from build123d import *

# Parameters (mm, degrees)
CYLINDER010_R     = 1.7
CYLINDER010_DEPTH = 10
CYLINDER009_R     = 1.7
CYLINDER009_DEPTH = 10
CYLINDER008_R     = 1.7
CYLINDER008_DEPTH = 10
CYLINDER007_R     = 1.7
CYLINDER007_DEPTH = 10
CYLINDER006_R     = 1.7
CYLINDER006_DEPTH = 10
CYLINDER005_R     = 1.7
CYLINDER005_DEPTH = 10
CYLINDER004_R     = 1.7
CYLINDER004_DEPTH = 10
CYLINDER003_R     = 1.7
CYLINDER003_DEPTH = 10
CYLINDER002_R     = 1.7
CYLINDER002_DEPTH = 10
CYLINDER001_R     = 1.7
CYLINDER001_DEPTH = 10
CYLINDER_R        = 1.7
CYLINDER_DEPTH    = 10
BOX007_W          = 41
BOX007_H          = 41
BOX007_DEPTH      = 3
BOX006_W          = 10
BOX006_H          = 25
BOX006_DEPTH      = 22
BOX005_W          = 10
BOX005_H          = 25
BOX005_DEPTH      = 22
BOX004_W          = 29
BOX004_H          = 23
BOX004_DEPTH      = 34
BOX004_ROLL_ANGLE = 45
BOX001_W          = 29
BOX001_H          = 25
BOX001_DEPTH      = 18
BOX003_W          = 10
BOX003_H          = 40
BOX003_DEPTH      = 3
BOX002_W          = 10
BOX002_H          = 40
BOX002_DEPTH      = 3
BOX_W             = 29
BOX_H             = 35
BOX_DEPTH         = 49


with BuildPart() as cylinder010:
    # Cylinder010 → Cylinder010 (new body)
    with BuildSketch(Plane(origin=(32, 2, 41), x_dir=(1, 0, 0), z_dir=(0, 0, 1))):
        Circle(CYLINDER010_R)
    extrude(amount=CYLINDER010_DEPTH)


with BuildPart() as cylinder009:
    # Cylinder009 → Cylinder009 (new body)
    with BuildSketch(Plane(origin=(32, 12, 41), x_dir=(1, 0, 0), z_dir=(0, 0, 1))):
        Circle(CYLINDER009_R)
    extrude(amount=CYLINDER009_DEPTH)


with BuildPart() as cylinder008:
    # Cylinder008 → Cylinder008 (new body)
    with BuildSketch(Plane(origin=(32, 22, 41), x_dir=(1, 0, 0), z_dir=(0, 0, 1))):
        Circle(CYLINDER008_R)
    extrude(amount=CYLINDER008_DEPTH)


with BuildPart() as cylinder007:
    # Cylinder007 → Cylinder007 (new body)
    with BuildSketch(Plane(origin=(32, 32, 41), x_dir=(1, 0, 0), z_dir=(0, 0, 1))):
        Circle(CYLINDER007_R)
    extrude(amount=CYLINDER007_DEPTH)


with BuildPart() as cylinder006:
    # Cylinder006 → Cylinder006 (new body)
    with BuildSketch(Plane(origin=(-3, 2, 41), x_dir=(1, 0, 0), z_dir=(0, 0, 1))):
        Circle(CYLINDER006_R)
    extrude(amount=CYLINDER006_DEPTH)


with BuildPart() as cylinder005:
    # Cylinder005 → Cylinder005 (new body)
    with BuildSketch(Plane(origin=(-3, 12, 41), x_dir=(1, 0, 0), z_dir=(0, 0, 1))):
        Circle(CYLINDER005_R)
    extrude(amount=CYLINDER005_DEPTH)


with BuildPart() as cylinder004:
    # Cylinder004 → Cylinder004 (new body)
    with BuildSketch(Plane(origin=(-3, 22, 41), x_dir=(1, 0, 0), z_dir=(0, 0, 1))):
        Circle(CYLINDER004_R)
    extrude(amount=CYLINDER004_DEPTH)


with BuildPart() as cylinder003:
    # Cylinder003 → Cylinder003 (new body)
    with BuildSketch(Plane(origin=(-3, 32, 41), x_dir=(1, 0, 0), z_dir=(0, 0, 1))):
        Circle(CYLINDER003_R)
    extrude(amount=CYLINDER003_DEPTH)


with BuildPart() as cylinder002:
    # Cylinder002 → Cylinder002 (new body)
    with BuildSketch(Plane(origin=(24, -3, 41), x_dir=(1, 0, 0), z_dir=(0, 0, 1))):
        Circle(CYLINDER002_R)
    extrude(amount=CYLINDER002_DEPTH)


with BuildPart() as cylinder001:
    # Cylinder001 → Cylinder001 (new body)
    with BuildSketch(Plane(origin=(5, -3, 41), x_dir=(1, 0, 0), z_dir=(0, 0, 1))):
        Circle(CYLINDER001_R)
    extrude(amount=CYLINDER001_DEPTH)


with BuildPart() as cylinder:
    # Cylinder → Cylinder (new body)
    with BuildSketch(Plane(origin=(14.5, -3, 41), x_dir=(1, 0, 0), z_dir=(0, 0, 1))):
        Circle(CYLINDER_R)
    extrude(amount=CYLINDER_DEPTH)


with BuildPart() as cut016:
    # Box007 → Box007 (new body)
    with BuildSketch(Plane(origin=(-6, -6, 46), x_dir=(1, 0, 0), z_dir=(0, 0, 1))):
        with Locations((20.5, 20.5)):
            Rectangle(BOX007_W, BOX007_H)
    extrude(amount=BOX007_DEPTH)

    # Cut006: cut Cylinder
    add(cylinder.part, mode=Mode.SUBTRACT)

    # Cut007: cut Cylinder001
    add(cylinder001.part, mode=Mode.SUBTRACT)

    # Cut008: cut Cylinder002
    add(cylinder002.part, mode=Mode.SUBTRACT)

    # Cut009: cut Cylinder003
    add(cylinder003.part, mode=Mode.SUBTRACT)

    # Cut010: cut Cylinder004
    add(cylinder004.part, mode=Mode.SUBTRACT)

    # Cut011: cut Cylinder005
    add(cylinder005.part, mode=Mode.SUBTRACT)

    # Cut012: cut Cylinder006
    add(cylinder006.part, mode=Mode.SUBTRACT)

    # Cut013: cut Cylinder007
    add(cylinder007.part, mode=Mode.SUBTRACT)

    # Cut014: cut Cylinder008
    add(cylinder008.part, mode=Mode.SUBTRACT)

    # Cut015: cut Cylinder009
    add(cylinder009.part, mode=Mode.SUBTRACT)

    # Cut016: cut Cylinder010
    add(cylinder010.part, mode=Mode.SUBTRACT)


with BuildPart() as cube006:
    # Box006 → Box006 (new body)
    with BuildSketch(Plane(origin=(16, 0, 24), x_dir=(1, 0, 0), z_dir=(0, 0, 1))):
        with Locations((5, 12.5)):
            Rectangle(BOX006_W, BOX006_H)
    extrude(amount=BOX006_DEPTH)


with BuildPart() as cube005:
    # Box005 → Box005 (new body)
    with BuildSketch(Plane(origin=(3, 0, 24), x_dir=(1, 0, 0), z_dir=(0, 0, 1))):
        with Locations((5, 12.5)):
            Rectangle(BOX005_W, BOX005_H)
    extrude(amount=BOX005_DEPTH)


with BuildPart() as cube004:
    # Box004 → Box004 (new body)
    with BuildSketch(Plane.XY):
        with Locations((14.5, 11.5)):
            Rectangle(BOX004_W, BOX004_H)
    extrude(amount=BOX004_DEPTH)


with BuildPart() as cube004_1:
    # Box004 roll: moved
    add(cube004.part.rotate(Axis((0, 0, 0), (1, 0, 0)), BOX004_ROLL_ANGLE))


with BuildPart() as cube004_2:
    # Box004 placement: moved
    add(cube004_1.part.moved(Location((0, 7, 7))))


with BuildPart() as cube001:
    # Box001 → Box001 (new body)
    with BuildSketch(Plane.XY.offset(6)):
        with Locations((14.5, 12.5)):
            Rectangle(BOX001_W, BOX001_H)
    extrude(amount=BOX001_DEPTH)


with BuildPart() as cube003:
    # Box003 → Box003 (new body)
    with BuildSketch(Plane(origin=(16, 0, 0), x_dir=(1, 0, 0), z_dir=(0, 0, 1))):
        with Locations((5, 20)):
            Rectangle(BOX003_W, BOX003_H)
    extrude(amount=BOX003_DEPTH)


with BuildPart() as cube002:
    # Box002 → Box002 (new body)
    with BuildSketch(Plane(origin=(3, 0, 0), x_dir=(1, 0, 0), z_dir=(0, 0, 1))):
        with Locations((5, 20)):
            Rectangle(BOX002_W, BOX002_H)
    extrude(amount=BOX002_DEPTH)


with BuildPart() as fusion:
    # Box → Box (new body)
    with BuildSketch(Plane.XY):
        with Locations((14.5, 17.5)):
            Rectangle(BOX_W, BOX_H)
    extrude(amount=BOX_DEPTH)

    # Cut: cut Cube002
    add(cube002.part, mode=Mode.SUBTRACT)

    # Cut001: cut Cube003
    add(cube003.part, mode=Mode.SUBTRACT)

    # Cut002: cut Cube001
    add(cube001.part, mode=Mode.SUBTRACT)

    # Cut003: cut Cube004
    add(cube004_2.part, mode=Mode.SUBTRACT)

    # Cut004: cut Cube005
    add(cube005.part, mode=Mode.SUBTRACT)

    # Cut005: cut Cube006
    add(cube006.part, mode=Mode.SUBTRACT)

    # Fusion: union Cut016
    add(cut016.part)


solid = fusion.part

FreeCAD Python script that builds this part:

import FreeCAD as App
import Part
import Sketcher
from FreeCAD import Vector


def add_polygon(sketch, points):
    """Adds a closed chain of lines whose ends are joined by coincident constraints."""
    first, n = sketch.GeometryCount, len(points)
    for a, b in zip(points, points[1:] + points[:1]):
        sketch.addGeometry(Part.LineSegment(App.Vector(*a, 0), App.Vector(*b, 0)), False)
    for i in range(n):
        sketch.addConstraint(Sketcher.Constraint("Coincident", first + i, 2, first + (i + 1) % n, 1))

doc = App.newDocument("Part")
body = doc.addObject("PartDesign::Body", "Body")

# Sketch on XY plane
sketch1 = body.newObject("Sketcher::SketchObject", "Sketch")
sketch1.AttachmentSupport = (doc.getObject("XY_Plane"), [""])
sketch1.MapMode = "FlatFace"
sketch1.AttachmentOffset = App.Placement(Vector(0, 0, 41), App.Rotation())
sketch1.addGeometry(Part.Circle(Vector(32, 2, 0), Vector(0, 0, 1), 1.7), False)
sketch1.addConstraint([
    Sketcher.Constraint("Diameter", 0, 3.4),
    Sketcher.Constraint("DistanceX", -1, 1, 0, 3, 32.0),
    Sketcher.Constraint("DistanceY", -1, 1, 0, 3, 2.0),
])
pad1 = body.newObject("PartDesign::Pad", "Pad")
pad1.Profile = sketch1
pad1.Length = 10
body2 = doc.addObject("PartDesign::Body", "Body001")

# Sketch on XY plane
sketch2 = body2.newObject("Sketcher::SketchObject", "Sketch001")
sketch2.AttachmentSupport = (doc.getObject("XY_Plane001"), [""])
sketch2.MapMode = "FlatFace"
sketch2.AttachmentOffset = App.Placement(Vector(0, 0, 41), App.Rotation())
sketch2.addGeometry(Part.Circle(Vector(32, 12, 0), Vector(0, 0, 1), 1.7), False)
sketch2.addConstraint([
    Sketcher.Constraint("Diameter", 0, 3.4),
    Sketcher.Constraint("DistanceX", -1, 1, 0, 3, 32.0),
    Sketcher.Constraint("DistanceY", -1, 1, 0, 3, 12.0),
])
pad2 = body2.newObject("PartDesign::Pad", "Pad001")
pad2.Profile = sketch2
pad2.Length = 10
body3 = doc.addObject("PartDesign::Body", "Body002")

# Sketch on XY plane
sketch3 = body3.newObject("Sketcher::SketchObject", "Sketch002")
sketch3.AttachmentSupport = (doc.getObject("XY_Plane002"), [""])
sketch3.MapMode = "FlatFace"
sketch3.AttachmentOffset = App.Placement(Vector(0, 0, 41), App.Rotation())
sketch3.addGeometry(Part.Circle(Vector(32, 22, 0), Vector(0, 0, 1), 1.7), False)
sketch3.addConstraint([
    Sketcher.Constraint("Diameter", 0, 3.4),
    Sketcher.Constraint("DistanceX", -1, 1, 0, 3, 32.0),
    Sketcher.Constraint("DistanceY", -1, 1, 0, 3, 22.0),
])
pad3 = body3.newObject("PartDesign::Pad", "Pad002")
pad3.Profile = sketch3
pad3.Length = 10
body4 = doc.addObject("PartDesign::Body", "Body003")

# Sketch on XY plane
sketch4 = body4.newObject("Sketcher::SketchObject", "Sketch003")
sketch4.AttachmentSupport = (doc.getObject("XY_Plane003"), [""])
sketch4.MapMode = "FlatFace"
sketch4.AttachmentOffset = App.Placement(Vector(0, 0, 41), App.Rotation())
sketch4.addGeometry(Part.Circle(Vector(32, 32, 0), Vector(0, 0, 1), 1.7), False)
sketch4.addConstraint([
    Sketcher.Constraint("Diameter", 0, 3.4),
    Sketcher.Constraint("DistanceX", -1, 1, 0, 3, 32.0),
    Sketcher.Constraint("DistanceY", -1, 1, 0, 3, 32.0),
])
pad4 = body4.newObject("PartDesign::Pad", "Pad003")
pad4.Profile = sketch4
pad4.Length = 10
body5 = doc.addObject("PartDesign::Body", "Body004")

# Sketch on XY plane
sketch5 = body5.newObject("Sketcher::SketchObject", "Sketch004")
sketch5.AttachmentSupport = (doc.getObject("XY_Plane004"), [""])
sketch5.MapMode = "FlatFace"
sketch5.AttachmentOffset = App.Placement(Vector(0, 0, 41), App.Rotation())
sketch5.addGeometry(Part.Circle(Vector(-3, 2, 0), Vector(0, 0, 1), 1.7), False)
sketch5.addConstraint([
    Sketcher.Constraint("Diameter", 0, 3.4),
    Sketcher.Constraint("DistanceX", 0, 3, -1, 1, 3.0),
    Sketcher.Constraint("DistanceY", -1, 1, 0, 3, 2.0),
])
pad5 = body5.newObject("PartDesign::Pad", "Pad004")
pad5.Profile = sketch5
pad5.Length = 10
body6 = doc.addObject("PartDesign::Body", "Body005")

# Sketch on XY plane
sketch6 = body6.newObject("Sketcher::SketchObject", "Sketch005")
sketch6.AttachmentSupport = (doc.getObject("XY_Plane005"), [""])
sketch6.MapMode = "FlatFace"
sketch6.AttachmentOffset = App.Placement(Vector(0, 0, 41), App.Rotation())
sketch6.addGeometry(Part.Circle(Vector(-3, 12, 0), Vector(0, 0, 1), 1.7), False)
sketch6.addConstraint([
    Sketcher.Constraint("Diameter", 0, 3.4),
    Sketcher.Constraint("DistanceX", 0, 3, -1, 1, 3.0),
    Sketcher.Constraint("DistanceY", -1, 1, 0, 3, 12.0),
])
pad6 = body6.newObject("PartDesign::Pad", "Pad005")
pad6.Profile = sketch6
pad6.Length = 10
body7 = doc.addObject("PartDesign::Body", "Body006")

# Sketch on XY plane
sketch7 = body7.newObject("Sketcher::SketchObject", "Sketch006")
sketch7.AttachmentSupport = (doc.getObject("XY_Plane006"), [""])
sketch7.MapMode = "FlatFace"
sketch7.AttachmentOffset = App.Placement(Vector(0, 0, 41), App.Rotation())
sketch7.addGeometry(Part.Circle(Vector(-3, 22, 0), Vector(0, 0, 1), 1.7), False)
sketch7.addConstraint([
    Sketcher.Constraint("Diameter", 0, 3.4),
    Sketcher.Constraint("DistanceX", 0, 3, -1, 1, 3.0),
    Sketcher.Constraint("DistanceY", -1, 1, 0, 3, 22.0),
])
pad7 = body7.newObject("PartDesign::Pad", "Pad006")
pad7.Profile = sketch7
pad7.Length = 10
body8 = doc.addObject("PartDesign::Body", "Body007")

# Sketch on XY plane
sketch8 = body8.newObject("Sketcher::SketchObject", "Sketch007")
sketch8.AttachmentSupport = (doc.getObject("XY_Plane007"), [""])
sketch8.MapMode = "FlatFace"
sketch8.AttachmentOffset = App.Placement(Vector(0, 0, 41), App.Rotation())
sketch8.addGeometry(Part.Circle(Vector(-3, 32, 0), Vector(0, 0, 1), 1.7), False)
sketch8.addConstraint([
    Sketcher.Constraint("Diameter", 0, 3.4),
    Sketcher.Constraint("DistanceX", 0, 3, -1, 1, 3.0),
    Sketcher.Constraint("DistanceY", -1, 1, 0, 3, 32.0),
])
pad8 = body8.newObject("PartDesign::Pad", "Pad007")
pad8.Profile = sketch8
pad8.Length = 10
body9 = doc.addObject("PartDesign::Body", "Body008")

# Sketch on XY plane
sketch9 = body9.newObject("Sketcher::SketchObject", "Sketch008")
sketch9.AttachmentSupport = (doc.getObject("XY_Plane008"), [""])
sketch9.MapMode = "FlatFace"
sketch9.AttachmentOffset = App.Placement(Vector(0, 0, 41), App.Rotation())
sketch9.addGeometry(Part.Circle(Vector(24, -3, 0), Vector(0, 0, 1), 1.7), False)
sketch9.addConstraint([
    Sketcher.Constraint("Diameter", 0, 3.4),
    Sketcher.Constraint("DistanceX", -1, 1, 0, 3, 24.0),
    Sketcher.Constraint("DistanceY", 0, 3, -1, 1, 3.0),
])
pad9 = body9.newObject("PartDesign::Pad", "Pad008")
pad9.Profile = sketch9
pad9.Length = 10
body10 = doc.addObject("PartDesign::Body", "Body009")

# Sketch on XY plane
sketch10 = body10.newObject("Sketcher::SketchObject", "Sketch009")
sketch10.AttachmentSupport = (doc.getObject("XY_Plane009"), [""])
sketch10.MapMode = "FlatFace"
sketch10.AttachmentOffset = App.Placement(Vector(0, 0, 41), App.Rotation())
sketch10.addGeometry(Part.Circle(Vector(5, -3, 0), Vector(0, 0, 1), 1.7), False)
sketch10.addConstraint([
    Sketcher.Constraint("Diameter", 0, 3.4),
    Sketcher.Constraint("DistanceX", -1, 1, 0, 3, 5.0),
    Sketcher.Constraint("DistanceY", 0, 3, -1, 1, 3.0),
])
pad10 = body10.newObject("PartDesign::Pad", "Pad009")
pad10.Profile = sketch10
pad10.Length = 10
body11 = doc.addObject("PartDesign::Body", "Body010")

# Sketch on XY plane
sketch11 = body11.newObject("Sketcher::SketchObject", "Sketch010")
sketch11.AttachmentSupport = (doc.getObject("XY_Plane010"), [""])
sketch11.MapMode = "FlatFace"
sketch11.AttachmentOffset = App.Placement(Vector(0, 0, 41), App.Rotation())
sketch11.addGeometry(Part.Circle(Vector(14.5, -3, 0), Vector(0, 0, 1), 1.7), False)
sketch11.addConstraint([
    Sketcher.Constraint("Diameter", 0, 3.4),
    Sketcher.Constraint("DistanceY", 0, 3, -1, 1, 3.0),
    Sketcher.Constraint("DistanceX", -1, 1, 0, 3, 14.5),
])
pad11 = body11.newObject("PartDesign::Pad", "Pad010")
pad11.Profile = sketch11
pad11.Length = 10
body12 = doc.addObject("PartDesign::Body", "Body011")

# Sketch on XY plane
sketch12 = body12.newObject("Sketcher::SketchObject", "Sketch011")
sketch12.AttachmentSupport = (doc.getObject("XY_Plane011"), [""])
sketch12.MapMode = "FlatFace"
sketch12.AttachmentOffset = App.Placement(Vector(0, 0, 46), App.Rotation())
add_polygon(sketch12, [(-6, 35), (-6, -6), (35, -6), (35, 35)])  # lines 0-3
sketch12.addConstraint([
    Sketcher.Constraint("Vertical", 0),
    Sketcher.Constraint("Horizontal", 1),
    Sketcher.Constraint("Vertical", 2),
    Sketcher.Constraint("Horizontal", 3),
    Sketcher.Constraint("Equal", 3, 0),
    Sketcher.Constraint("DistanceX", 1, 1, 1, 2, 41.0),
    Sketcher.Constraint("DistanceX", 0, 2, -1, 1, 6.0),
    Sketcher.Constraint("DistanceY", 0, 2, -1, 1, 6.0),
])
pad12 = body12.newObject("PartDesign::Pad", "Pad011")
pad12.Profile = sketch12
pad12.Length = 3
doc.recompute()

boolean = body12.newObject("PartDesign::Boolean", "Boolean")
boolean.Type = "Cut"
boolean.addObjects([body11])
doc.recompute()

boolean2 = body12.newObject("PartDesign::Boolean", "Boolean001")
boolean2.Type = "Cut"
boolean2.addObjects([body10])
doc.recompute()

boolean3 = body12.newObject("PartDesign::Boolean", "Boolean002")
boolean3.Type = "Cut"
boolean3.addObjects([body9])
doc.recompute()

boolean4 = body12.newObject("PartDesign::Boolean", "Boolean003")
boolean4.Type = "Cut"
boolean4.addObjects([body8])
doc.recompute()

boolean5 = body12.newObject("PartDesign::Boolean", "Boolean004")
boolean5.Type = "Cut"
boolean5.addObjects([body7])
doc.recompute()

boolean6 = body12.newObject("PartDesign::Boolean", "Boolean005")
boolean6.Type = "Cut"
boolean6.addObjects([body6])
doc.recompute()

boolean7 = body12.newObject("PartDesign::Boolean", "Boolean006")
boolean7.Type = "Cut"
boolean7.addObjects([body5])
doc.recompute()

boolean8 = body12.newObject("PartDesign::Boolean", "Boolean007")
boolean8.Type = "Cut"
boolean8.addObjects([body4])
doc.recompute()

boolean9 = body12.newObject("PartDesign::Boolean", "Boolean008")
boolean9.Type = "Cut"
boolean9.addObjects([body3])
doc.recompute()

boolean10 = body12.newObject("PartDesign::Boolean", "Boolean009")
boolean10.Type = "Cut"
boolean10.addObjects([body2])
doc.recompute()

boolean11 = body12.newObject("PartDesign::Boolean", "Boolean010")
boolean11.Type = "Cut"
boolean11.addObjects([body])
body13 = doc.addObject("PartDesign::Body", "Body012")

# Sketch on XY plane
sketch13 = body13.newObject("Sketcher::SketchObject", "Sketch012")
sketch13.AttachmentSupport = (doc.getObject("XY_Plane012"), [""])
sketch13.MapMode = "FlatFace"
sketch13.AttachmentOffset = App.Placement(Vector(0, 0, 24), App.Rotation())
add_polygon(sketch13, [(16, 25), (16, 0), (26, 0), (26, 25)])  # lines 0-3
sketch13.addConstraint([
    Sketcher.Constraint("Vertical", 0),
    Sketcher.Constraint("Horizontal", 1),
    Sketcher.Constraint("Vertical", 2),
    Sketcher.Constraint("Horizontal", 3),
    Sketcher.Constraint("PointOnObject", 0, 2, -1),
    Sketcher.Constraint("DistanceX", 1, 1, 1, 2, 10.0),
    Sketcher.Constraint("DistanceY", 0, 2, 0, 1, 25.0),
    Sketcher.Constraint("DistanceX", -1, 1, 0, 2, 16.0),
])
pad13 = body13.newObject("PartDesign::Pad", "Pad012")
pad13.Profile = sketch13
pad13.Length = 22
body14 = doc.addObject("PartDesign::Body", "Body013")

# Sketch on XY plane
sketch14 = body14.newObject("Sketcher::SketchObject", "Sketch013")
sketch14.AttachmentSupport = (doc.getObject("XY_Plane013"), [""])
sketch14.MapMode = "FlatFace"
sketch14.AttachmentOffset = App.Placement(Vector(0, 0, 24), App.Rotation())
add_polygon(sketch14, [(3, 25), (3, 0), (13, 0), (13, 25)])  # lines 0-3
sketch14.addConstraint([
    Sketcher.Constraint("Vertical", 0),
    Sketcher.Constraint("Horizontal", 1),
    Sketcher.Constraint("Vertical", 2),
    Sketcher.Constraint("Horizontal", 3),
    Sketcher.Constraint("PointOnObject", 0, 2, -1),
    Sketcher.Constraint("DistanceX", 1, 1, 1, 2, 10.0),
    Sketcher.Constraint("DistanceY", 0, 2, 0, 1, 25.0),
    Sketcher.Constraint("DistanceX", -1, 1, 0, 2, 3.0),
])
pad14 = body14.newObject("PartDesign::Pad", "Pad013")
pad14.Profile = sketch14
pad14.Length = 22
body15 = doc.addObject("PartDesign::Body", "Body014")

# Sketch on XY plane
sketch15 = body15.newObject("Sketcher::SketchObject", "Sketch014")
sketch15.AttachmentSupport = (doc.getObject("XY_Plane014"), [""])
sketch15.MapMode = "FlatFace"
add_polygon(sketch15, [(0, 23), (0, 0), (29, 0), (29, 23)])  # lines 0-3
sketch15.addConstraint([
    Sketcher.Constraint("Vertical", 0),
    Sketcher.Constraint("Horizontal", 1),
    Sketcher.Constraint("Vertical", 2),
    Sketcher.Constraint("Horizontal", 3),
    Sketcher.Constraint("Coincident", 0, 2, -1, 1),
    Sketcher.Constraint("DistanceX", 1, 1, 1, 2, 29.0),
    Sketcher.Constraint("DistanceY", 0, 2, 0, 1, 23.0),
])
pad15 = body15.newObject("PartDesign::Pad", "Pad014")
pad15.Profile = sketch15
pad15.Length = 34
body16 = doc.addObject("PartDesign::Body", "Body015")
doc.recompute()

body15.Placement = App.Placement(Vector(0, 0, 0), App.Rotation(Vector(1, 0, 0), 45))
boolean12 = body16.newObject("PartDesign::Boolean", "Boolean011")
boolean12.Type = "Fuse"
boolean12.addObjects([body15])
body17 = doc.addObject("PartDesign::Body", "Body016")
doc.recompute()

body16.Placement = App.Placement(Vector(0, 7, 7), App.Rotation(Vector(0, 0, 1), 0))
boolean13 = body17.newObject("PartDesign::Boolean", "Boolean012")
boolean13.Type = "Fuse"
boolean13.addObjects([body16])
body18 = doc.addObject("PartDesign::Body", "Body017")

# Sketch on XY plane
sketch16 = body18.newObject("Sketcher::SketchObject", "Sketch015")
sketch16.AttachmentSupport = (doc.getObject("XY_Plane017"), [""])
sketch16.MapMode = "FlatFace"
sketch16.AttachmentOffset = App.Placement(Vector(0, 0, 6), App.Rotation())
add_polygon(sketch16, [(0, 25), (0, 0), (29, 0), (29, 25)])  # lines 0-3
sketch16.addConstraint([
    Sketcher.Constraint("Vertical", 0),
    Sketcher.Constraint("Horizontal", 1),
    Sketcher.Constraint("Vertical", 2),
    Sketcher.Constraint("Horizontal", 3),
    Sketcher.Constraint("Coincident", 0, 2, -1, 1),
    Sketcher.Constraint("DistanceX", 1, 1, 1, 2, 29.0),
    Sketcher.Constraint("DistanceY", 0, 2, 0, 1, 25.0),
])
pad16 = body18.newObject("PartDesign::Pad", "Pad015")
pad16.Profile = sketch16
pad16.Length = 18
body19 = doc.addObject("PartDesign::Body", "Body018")

# Sketch on XY plane
sketch17 = body19.newObject("Sketcher::SketchObject", "Sketch016")
sketch17.AttachmentSupport = (doc.getObject("XY_Plane018"), [""])
sketch17.MapMode = "FlatFace"
add_polygon(sketch17, [(16, 40), (16, 0), (26, 0), (26, 40)])  # lines 0-3
sketch17.addConstraint([
    Sketcher.Constraint("Vertical", 0),
    Sketcher.Constraint("Horizontal", 1),
    Sketcher.Constraint("Vertical", 2),
    Sketcher.Constraint("Horizontal", 3),
    Sketcher.Constraint("PointOnObject", 0, 2, -1),
    Sketcher.Constraint("DistanceX", 1, 1, 1, 2, 10.0),
    Sketcher.Constraint("DistanceY", 0, 2, 0, 1, 40.0),
    Sketcher.Constraint("DistanceX", -1, 1, 0, 2, 16.0),
])
pad17 = body19.newObject("PartDesign::Pad", "Pad016")
pad17.Profile = sketch17
pad17.Length = 3
body20 = doc.addObject("PartDesign::Body", "Body019")

# Sketch on XY plane
sketch18 = body20.newObject("Sketcher::SketchObject", "Sketch017")
sketch18.AttachmentSupport = (doc.getObject("XY_Plane019"), [""])
sketch18.MapMode = "FlatFace"
add_polygon(sketch18, [(3, 40), (3, 0), (13, 0), (13, 40)])  # lines 0-3
sketch18.addConstraint([
    Sketcher.Constraint("Vertical", 0),
    Sketcher.Constraint("Horizontal", 1),
    Sketcher.Constraint("Vertical", 2),
    Sketcher.Constraint("Horizontal", 3),
    Sketcher.Constraint("PointOnObject", 0, 2, -1),
    Sketcher.Constraint("DistanceX", 1, 1, 1, 2, 10.0),
    Sketcher.Constraint("DistanceY", 0, 2, 0, 1, 40.0),
    Sketcher.Constraint("DistanceX", -1, 1, 0, 2, 3.0),
])
pad18 = body20.newObject("PartDesign::Pad", "Pad017")
pad18.Profile = sketch18
pad18.Length = 3
body21 = doc.addObject("PartDesign::Body", "Body020")

# Sketch on XY plane
sketch19 = body21.newObject("Sketcher::SketchObject", "Sketch018")
sketch19.AttachmentSupport = (doc.getObject("XY_Plane020"), [""])
sketch19.MapMode = "FlatFace"
add_polygon(sketch19, [(0, 35), (0, 0), (29, 0), (29, 35)])  # lines 0-3
sketch19.addConstraint([
    Sketcher.Constraint("Vertical", 0),
    Sketcher.Constraint("Horizontal", 1),
    Sketcher.Constraint("Vertical", 2),
    Sketcher.Constraint("Horizontal", 3),
    Sketcher.Constraint("Coincident", 0, 2, -1, 1),
    Sketcher.Constraint("DistanceX", 1, 1, 1, 2, 29.0),
    Sketcher.Constraint("DistanceY", 0, 2, 0, 1, 35.0),
])
pad19 = body21.newObject("PartDesign::Pad", "Pad018")
pad19.Profile = sketch19
pad19.Length = 49
doc.recompute()

boolean14 = body21.newObject("PartDesign::Boolean", "Boolean013")
boolean14.Type = "Cut"
boolean14.addObjects([body20])
doc.recompute()

boolean15 = body21.newObject("PartDesign::Boolean", "Boolean014")
boolean15.Type = "Cut"
boolean15.addObjects([body19])
doc.recompute()

boolean16 = body21.newObject("PartDesign::Boolean", "Boolean015")
boolean16.Type = "Cut"
boolean16.addObjects([body18])
doc.recompute()

boolean17 = body21.newObject("PartDesign::Boolean", "Boolean016")
boolean17.Type = "Cut"
boolean17.addObjects([body17])
doc.recompute()

boolean18 = body21.newObject("PartDesign::Boolean", "Boolean017")
boolean18.Type = "Cut"
boolean18.addObjects([body14])
doc.recompute()

boolean19 = body21.newObject("PartDesign::Boolean", "Boolean018")
boolean19.Type = "Cut"
boolean19.addObjects([body13])
doc.recompute()

boolean20 = body21.newObject("PartDesign::Boolean", "Boolean019")
boolean20.Type = "Fuse"
boolean20.addObjects([body12])

doc.recompute()
